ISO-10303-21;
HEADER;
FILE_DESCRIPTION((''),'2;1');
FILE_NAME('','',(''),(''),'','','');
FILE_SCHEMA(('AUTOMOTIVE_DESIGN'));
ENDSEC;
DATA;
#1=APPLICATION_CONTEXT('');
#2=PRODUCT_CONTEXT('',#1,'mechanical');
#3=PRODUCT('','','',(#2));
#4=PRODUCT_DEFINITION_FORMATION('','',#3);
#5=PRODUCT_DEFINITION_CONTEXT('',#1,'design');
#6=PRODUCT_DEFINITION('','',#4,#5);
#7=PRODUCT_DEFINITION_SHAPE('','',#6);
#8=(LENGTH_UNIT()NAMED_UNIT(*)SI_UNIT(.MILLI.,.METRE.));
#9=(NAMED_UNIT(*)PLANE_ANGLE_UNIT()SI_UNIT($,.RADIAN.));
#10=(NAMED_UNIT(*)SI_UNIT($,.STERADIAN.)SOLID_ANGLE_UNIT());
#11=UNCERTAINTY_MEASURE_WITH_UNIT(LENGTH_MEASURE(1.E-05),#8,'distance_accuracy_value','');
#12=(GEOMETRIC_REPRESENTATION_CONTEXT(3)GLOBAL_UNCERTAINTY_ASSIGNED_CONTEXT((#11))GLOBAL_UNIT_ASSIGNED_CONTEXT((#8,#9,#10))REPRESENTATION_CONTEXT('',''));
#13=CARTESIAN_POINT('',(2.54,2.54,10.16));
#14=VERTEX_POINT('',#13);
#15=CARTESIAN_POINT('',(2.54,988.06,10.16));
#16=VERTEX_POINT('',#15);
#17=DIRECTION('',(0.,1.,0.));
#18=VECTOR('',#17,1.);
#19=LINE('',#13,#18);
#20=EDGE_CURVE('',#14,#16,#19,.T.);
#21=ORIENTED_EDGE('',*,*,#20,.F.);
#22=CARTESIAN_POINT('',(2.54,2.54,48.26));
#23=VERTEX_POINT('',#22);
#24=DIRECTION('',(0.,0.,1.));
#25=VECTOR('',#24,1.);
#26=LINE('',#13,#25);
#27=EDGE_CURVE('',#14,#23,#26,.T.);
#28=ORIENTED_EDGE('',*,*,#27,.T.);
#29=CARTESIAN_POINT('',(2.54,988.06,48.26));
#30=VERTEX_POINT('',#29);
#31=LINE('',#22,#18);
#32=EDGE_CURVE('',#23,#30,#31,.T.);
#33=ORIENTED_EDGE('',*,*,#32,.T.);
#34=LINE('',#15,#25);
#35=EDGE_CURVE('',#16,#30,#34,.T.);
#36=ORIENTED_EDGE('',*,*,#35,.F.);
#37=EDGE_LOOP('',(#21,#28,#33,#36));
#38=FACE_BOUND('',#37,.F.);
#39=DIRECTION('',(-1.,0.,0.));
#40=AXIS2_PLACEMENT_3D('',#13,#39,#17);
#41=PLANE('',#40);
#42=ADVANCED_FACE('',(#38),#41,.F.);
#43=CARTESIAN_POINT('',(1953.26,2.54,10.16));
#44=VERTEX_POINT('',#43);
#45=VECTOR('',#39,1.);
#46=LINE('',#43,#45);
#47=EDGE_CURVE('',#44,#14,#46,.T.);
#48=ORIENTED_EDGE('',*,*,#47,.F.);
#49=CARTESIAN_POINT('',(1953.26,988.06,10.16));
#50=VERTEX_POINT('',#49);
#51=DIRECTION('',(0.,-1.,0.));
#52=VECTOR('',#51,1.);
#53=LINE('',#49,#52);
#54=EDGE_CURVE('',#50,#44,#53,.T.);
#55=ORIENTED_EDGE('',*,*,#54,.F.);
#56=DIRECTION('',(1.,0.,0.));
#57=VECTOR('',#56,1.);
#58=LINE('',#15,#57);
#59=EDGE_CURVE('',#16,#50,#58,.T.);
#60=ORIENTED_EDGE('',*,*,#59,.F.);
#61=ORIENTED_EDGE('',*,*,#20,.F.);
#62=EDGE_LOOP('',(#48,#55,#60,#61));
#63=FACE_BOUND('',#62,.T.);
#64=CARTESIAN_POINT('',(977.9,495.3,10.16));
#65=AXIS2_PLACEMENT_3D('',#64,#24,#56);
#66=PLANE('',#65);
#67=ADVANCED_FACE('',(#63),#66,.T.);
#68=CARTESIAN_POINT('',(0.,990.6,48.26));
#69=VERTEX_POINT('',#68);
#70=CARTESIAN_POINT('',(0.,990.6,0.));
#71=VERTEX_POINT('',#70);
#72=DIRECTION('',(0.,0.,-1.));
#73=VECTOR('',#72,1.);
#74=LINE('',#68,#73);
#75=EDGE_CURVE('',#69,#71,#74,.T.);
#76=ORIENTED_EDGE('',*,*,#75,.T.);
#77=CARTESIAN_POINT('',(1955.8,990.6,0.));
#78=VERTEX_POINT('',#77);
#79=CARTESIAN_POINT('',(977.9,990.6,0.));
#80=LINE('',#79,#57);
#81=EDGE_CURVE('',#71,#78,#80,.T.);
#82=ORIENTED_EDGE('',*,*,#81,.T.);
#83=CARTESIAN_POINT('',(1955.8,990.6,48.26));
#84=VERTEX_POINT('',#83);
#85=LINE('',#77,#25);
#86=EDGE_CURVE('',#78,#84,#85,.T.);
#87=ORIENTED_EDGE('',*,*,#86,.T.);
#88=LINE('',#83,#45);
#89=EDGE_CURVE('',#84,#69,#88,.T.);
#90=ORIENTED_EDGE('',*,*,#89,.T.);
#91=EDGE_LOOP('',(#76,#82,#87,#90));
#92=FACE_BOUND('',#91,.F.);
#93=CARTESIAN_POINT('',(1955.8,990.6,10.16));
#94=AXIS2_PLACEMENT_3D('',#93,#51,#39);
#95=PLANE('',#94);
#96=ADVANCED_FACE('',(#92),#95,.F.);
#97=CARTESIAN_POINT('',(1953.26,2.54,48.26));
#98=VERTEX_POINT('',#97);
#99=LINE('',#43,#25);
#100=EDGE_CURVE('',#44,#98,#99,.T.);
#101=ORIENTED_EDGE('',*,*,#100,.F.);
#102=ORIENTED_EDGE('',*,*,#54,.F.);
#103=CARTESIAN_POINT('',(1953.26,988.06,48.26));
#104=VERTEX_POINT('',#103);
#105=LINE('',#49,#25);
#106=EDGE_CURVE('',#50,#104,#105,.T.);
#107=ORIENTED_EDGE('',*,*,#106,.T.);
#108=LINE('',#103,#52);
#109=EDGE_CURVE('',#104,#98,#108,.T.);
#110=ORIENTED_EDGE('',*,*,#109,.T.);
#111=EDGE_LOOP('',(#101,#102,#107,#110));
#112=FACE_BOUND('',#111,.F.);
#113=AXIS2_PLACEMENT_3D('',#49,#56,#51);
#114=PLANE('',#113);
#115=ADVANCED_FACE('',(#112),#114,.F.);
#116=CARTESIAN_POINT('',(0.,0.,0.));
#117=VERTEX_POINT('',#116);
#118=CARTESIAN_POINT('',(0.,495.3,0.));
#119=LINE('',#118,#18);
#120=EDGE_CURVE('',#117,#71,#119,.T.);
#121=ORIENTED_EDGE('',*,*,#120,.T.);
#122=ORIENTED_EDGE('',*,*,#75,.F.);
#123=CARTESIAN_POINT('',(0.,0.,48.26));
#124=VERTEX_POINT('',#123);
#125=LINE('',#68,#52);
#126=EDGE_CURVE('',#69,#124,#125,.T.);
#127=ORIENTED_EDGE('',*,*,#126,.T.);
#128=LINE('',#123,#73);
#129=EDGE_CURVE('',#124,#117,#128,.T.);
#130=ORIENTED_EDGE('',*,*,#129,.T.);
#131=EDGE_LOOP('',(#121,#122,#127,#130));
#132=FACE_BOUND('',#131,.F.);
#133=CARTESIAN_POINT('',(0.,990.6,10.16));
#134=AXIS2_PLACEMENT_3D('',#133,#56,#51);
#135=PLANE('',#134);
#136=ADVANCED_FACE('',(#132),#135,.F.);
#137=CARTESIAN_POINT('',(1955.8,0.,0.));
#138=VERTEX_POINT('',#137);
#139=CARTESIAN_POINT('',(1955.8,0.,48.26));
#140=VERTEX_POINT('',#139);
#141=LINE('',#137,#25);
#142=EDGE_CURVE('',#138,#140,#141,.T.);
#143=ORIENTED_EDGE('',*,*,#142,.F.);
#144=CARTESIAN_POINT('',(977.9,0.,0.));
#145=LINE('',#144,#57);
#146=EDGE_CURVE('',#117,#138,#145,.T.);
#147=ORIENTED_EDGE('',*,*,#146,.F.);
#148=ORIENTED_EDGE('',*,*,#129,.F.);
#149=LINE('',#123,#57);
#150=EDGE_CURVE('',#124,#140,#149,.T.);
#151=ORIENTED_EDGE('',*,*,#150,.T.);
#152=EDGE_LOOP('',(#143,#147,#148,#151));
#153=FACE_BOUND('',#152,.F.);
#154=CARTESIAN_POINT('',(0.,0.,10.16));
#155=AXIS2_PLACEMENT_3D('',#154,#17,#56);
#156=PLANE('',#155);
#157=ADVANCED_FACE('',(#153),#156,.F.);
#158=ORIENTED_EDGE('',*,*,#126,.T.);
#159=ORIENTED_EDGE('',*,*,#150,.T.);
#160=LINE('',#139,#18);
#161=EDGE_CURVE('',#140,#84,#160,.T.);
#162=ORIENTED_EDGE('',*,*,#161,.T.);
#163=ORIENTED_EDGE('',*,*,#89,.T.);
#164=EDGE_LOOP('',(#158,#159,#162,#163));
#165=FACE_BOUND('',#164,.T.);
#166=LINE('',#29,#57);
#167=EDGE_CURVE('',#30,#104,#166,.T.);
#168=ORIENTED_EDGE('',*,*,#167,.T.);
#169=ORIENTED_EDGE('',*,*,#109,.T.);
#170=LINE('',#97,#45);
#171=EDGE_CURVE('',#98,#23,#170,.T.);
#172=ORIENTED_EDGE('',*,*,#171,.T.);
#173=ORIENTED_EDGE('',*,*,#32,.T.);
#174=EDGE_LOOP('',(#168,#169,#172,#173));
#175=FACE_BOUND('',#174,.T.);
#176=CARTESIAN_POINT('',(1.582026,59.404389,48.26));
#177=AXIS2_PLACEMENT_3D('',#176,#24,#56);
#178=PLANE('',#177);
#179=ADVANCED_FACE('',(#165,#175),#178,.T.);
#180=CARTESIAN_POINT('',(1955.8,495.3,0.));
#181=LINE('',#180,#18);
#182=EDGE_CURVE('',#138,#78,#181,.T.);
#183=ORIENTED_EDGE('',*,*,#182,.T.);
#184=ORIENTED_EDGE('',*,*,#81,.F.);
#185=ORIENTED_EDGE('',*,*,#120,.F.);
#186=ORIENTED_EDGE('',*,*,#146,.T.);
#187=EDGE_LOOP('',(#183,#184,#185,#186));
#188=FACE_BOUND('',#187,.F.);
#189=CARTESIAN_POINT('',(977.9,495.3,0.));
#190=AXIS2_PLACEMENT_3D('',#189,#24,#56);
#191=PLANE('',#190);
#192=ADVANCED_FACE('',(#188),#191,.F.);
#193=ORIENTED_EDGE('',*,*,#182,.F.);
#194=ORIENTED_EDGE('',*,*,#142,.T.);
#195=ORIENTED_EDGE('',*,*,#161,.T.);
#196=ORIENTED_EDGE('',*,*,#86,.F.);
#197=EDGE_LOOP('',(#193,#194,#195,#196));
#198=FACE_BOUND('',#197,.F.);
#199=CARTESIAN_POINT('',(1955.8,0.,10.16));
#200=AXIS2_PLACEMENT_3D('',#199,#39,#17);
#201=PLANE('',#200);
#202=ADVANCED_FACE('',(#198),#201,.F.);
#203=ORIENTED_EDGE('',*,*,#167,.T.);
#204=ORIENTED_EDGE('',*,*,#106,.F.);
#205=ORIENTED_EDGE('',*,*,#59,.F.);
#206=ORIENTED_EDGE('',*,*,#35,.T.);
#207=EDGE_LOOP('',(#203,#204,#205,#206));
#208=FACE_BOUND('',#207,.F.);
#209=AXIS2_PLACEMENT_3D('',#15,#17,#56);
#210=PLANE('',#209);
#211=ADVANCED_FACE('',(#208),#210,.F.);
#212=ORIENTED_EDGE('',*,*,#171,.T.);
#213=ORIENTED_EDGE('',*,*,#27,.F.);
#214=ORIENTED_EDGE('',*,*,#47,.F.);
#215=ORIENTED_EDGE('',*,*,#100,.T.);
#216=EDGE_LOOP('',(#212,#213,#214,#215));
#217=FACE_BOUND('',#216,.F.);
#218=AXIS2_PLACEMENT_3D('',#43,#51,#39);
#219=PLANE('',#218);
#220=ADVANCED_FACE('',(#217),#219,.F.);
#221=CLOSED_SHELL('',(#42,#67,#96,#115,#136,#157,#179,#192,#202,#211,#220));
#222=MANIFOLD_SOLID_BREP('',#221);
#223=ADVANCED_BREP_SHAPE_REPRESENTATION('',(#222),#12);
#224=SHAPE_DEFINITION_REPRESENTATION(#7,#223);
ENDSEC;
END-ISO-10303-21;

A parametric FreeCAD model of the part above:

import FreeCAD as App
import Part
import Sketcher
from FreeCAD import Vector
Q = App.Units.Quantity


def add_polygon(sketch, points):
    """Adds a closed chain of lines whose ends are joined by coincident constraints."""
    first, n = sketch.GeometryCount, len(points)
    for a, b in zip(points, points[1:] + points[:1]):
        sketch.addGeometry(Part.LineSegment(App.Vector(*a, 0), App.Vector(*b, 0)), False)
    for i in range(n):
        sketch.addConstraint(Sketcher.Constraint("Coincident", first + i, 2, first + (i + 1) % n, 1))

doc = App.newDocument("Part")
body = doc.addObject("PartDesign::Body", "Body")

sketch1 = body.newObject("Sketcher::SketchObject", "Sketch")
sketch1.AttachmentSupport = (doc.getObject("XY_Plane"), [""])
sketch1.MapMode = "FlatFace"
add_polygon(sketch1, [(0, 991), (0, 0), (1956, 0), (1956, 991)])
sketch1.addConstraint([
    Sketcher.Constraint("Vertical", 0),
    Sketcher.Constraint("Horizontal", 1),
    Sketcher.Constraint("Vertical", 2),
    Sketcher.Constraint("Horizontal", 3),
    Sketcher.Constraint("Coincident", 0, 2, -1, 1),
    Sketcher.Constraint("DistanceX", 1, 1, 1, 2, Q("77 in")),
    Sketcher.Constraint("DistanceY", 0, 2, 0, 1, Q("39 in")),
])
pad1 = body.newObject("PartDesign::Pad", "Pad")
pad1.Profile = sketch1
pad1.Length = Q("0.4 in")

sketch2 = body.newObject("Sketcher::SketchObject", "Sketch001")
sketch2.AttachmentSupport = (doc.getObject("XY_Plane"), [""])
sketch2.MapMode = "FlatFace"
sketch2.AttachmentOffset = App.Placement(Vector(0, 0, 0.4 * 25.4), App.Rotation())
add_polygon(sketch2, [(0, 0), (1956, 0), (1956, 991), (0, 991)])
add_polygon(sketch2, [(3, 3), (3, 988), (1953, 988), (1953, 3)])
sketch2.addConstraint([
    Sketcher.Constraint("Horizontal", 0),
    Sketcher.Constraint("Vertical", 1),
    Sketcher.Constraint("Horizontal", 2),
    Sketcher.Constraint("Vertical", 3),
    Sketcher.Constraint("Vertical", 4),
    Sketcher.Constraint("Horizontal", 5),
    Sketcher.Constraint("Vertical", 6),
    Sketcher.Constraint("Horizontal", 7),
    Sketcher.Constraint("Coincident", 3, 2, -1, 1),
    Sketcher.Constraint("DistanceX", 0, 1, 0, 2, Q("77 in")),
    Sketcher.Constraint("DistanceY", 1, 1, 1, 2, Q("39 in")),
    Sketcher.Constraint("DistanceX", 5, 1, 5, 2, Q("76.8 in")),
    Sketcher.Constraint("DistanceY", 4, 1, 4, 2, Q("38.8 in")),
    Sketcher.Constraint("DistanceX", -1, 1, 4, 2, Q("0.1 in")),
    Sketcher.Constraint("DistanceY", -1, 1, 4, 2, Q("38.9 in")),
])
pad2 = body.newObject("PartDesign::Pad", "Pad001")
pad2.Profile = sketch2
pad2.Length = Q("1.5 in")

doc.recompute()
